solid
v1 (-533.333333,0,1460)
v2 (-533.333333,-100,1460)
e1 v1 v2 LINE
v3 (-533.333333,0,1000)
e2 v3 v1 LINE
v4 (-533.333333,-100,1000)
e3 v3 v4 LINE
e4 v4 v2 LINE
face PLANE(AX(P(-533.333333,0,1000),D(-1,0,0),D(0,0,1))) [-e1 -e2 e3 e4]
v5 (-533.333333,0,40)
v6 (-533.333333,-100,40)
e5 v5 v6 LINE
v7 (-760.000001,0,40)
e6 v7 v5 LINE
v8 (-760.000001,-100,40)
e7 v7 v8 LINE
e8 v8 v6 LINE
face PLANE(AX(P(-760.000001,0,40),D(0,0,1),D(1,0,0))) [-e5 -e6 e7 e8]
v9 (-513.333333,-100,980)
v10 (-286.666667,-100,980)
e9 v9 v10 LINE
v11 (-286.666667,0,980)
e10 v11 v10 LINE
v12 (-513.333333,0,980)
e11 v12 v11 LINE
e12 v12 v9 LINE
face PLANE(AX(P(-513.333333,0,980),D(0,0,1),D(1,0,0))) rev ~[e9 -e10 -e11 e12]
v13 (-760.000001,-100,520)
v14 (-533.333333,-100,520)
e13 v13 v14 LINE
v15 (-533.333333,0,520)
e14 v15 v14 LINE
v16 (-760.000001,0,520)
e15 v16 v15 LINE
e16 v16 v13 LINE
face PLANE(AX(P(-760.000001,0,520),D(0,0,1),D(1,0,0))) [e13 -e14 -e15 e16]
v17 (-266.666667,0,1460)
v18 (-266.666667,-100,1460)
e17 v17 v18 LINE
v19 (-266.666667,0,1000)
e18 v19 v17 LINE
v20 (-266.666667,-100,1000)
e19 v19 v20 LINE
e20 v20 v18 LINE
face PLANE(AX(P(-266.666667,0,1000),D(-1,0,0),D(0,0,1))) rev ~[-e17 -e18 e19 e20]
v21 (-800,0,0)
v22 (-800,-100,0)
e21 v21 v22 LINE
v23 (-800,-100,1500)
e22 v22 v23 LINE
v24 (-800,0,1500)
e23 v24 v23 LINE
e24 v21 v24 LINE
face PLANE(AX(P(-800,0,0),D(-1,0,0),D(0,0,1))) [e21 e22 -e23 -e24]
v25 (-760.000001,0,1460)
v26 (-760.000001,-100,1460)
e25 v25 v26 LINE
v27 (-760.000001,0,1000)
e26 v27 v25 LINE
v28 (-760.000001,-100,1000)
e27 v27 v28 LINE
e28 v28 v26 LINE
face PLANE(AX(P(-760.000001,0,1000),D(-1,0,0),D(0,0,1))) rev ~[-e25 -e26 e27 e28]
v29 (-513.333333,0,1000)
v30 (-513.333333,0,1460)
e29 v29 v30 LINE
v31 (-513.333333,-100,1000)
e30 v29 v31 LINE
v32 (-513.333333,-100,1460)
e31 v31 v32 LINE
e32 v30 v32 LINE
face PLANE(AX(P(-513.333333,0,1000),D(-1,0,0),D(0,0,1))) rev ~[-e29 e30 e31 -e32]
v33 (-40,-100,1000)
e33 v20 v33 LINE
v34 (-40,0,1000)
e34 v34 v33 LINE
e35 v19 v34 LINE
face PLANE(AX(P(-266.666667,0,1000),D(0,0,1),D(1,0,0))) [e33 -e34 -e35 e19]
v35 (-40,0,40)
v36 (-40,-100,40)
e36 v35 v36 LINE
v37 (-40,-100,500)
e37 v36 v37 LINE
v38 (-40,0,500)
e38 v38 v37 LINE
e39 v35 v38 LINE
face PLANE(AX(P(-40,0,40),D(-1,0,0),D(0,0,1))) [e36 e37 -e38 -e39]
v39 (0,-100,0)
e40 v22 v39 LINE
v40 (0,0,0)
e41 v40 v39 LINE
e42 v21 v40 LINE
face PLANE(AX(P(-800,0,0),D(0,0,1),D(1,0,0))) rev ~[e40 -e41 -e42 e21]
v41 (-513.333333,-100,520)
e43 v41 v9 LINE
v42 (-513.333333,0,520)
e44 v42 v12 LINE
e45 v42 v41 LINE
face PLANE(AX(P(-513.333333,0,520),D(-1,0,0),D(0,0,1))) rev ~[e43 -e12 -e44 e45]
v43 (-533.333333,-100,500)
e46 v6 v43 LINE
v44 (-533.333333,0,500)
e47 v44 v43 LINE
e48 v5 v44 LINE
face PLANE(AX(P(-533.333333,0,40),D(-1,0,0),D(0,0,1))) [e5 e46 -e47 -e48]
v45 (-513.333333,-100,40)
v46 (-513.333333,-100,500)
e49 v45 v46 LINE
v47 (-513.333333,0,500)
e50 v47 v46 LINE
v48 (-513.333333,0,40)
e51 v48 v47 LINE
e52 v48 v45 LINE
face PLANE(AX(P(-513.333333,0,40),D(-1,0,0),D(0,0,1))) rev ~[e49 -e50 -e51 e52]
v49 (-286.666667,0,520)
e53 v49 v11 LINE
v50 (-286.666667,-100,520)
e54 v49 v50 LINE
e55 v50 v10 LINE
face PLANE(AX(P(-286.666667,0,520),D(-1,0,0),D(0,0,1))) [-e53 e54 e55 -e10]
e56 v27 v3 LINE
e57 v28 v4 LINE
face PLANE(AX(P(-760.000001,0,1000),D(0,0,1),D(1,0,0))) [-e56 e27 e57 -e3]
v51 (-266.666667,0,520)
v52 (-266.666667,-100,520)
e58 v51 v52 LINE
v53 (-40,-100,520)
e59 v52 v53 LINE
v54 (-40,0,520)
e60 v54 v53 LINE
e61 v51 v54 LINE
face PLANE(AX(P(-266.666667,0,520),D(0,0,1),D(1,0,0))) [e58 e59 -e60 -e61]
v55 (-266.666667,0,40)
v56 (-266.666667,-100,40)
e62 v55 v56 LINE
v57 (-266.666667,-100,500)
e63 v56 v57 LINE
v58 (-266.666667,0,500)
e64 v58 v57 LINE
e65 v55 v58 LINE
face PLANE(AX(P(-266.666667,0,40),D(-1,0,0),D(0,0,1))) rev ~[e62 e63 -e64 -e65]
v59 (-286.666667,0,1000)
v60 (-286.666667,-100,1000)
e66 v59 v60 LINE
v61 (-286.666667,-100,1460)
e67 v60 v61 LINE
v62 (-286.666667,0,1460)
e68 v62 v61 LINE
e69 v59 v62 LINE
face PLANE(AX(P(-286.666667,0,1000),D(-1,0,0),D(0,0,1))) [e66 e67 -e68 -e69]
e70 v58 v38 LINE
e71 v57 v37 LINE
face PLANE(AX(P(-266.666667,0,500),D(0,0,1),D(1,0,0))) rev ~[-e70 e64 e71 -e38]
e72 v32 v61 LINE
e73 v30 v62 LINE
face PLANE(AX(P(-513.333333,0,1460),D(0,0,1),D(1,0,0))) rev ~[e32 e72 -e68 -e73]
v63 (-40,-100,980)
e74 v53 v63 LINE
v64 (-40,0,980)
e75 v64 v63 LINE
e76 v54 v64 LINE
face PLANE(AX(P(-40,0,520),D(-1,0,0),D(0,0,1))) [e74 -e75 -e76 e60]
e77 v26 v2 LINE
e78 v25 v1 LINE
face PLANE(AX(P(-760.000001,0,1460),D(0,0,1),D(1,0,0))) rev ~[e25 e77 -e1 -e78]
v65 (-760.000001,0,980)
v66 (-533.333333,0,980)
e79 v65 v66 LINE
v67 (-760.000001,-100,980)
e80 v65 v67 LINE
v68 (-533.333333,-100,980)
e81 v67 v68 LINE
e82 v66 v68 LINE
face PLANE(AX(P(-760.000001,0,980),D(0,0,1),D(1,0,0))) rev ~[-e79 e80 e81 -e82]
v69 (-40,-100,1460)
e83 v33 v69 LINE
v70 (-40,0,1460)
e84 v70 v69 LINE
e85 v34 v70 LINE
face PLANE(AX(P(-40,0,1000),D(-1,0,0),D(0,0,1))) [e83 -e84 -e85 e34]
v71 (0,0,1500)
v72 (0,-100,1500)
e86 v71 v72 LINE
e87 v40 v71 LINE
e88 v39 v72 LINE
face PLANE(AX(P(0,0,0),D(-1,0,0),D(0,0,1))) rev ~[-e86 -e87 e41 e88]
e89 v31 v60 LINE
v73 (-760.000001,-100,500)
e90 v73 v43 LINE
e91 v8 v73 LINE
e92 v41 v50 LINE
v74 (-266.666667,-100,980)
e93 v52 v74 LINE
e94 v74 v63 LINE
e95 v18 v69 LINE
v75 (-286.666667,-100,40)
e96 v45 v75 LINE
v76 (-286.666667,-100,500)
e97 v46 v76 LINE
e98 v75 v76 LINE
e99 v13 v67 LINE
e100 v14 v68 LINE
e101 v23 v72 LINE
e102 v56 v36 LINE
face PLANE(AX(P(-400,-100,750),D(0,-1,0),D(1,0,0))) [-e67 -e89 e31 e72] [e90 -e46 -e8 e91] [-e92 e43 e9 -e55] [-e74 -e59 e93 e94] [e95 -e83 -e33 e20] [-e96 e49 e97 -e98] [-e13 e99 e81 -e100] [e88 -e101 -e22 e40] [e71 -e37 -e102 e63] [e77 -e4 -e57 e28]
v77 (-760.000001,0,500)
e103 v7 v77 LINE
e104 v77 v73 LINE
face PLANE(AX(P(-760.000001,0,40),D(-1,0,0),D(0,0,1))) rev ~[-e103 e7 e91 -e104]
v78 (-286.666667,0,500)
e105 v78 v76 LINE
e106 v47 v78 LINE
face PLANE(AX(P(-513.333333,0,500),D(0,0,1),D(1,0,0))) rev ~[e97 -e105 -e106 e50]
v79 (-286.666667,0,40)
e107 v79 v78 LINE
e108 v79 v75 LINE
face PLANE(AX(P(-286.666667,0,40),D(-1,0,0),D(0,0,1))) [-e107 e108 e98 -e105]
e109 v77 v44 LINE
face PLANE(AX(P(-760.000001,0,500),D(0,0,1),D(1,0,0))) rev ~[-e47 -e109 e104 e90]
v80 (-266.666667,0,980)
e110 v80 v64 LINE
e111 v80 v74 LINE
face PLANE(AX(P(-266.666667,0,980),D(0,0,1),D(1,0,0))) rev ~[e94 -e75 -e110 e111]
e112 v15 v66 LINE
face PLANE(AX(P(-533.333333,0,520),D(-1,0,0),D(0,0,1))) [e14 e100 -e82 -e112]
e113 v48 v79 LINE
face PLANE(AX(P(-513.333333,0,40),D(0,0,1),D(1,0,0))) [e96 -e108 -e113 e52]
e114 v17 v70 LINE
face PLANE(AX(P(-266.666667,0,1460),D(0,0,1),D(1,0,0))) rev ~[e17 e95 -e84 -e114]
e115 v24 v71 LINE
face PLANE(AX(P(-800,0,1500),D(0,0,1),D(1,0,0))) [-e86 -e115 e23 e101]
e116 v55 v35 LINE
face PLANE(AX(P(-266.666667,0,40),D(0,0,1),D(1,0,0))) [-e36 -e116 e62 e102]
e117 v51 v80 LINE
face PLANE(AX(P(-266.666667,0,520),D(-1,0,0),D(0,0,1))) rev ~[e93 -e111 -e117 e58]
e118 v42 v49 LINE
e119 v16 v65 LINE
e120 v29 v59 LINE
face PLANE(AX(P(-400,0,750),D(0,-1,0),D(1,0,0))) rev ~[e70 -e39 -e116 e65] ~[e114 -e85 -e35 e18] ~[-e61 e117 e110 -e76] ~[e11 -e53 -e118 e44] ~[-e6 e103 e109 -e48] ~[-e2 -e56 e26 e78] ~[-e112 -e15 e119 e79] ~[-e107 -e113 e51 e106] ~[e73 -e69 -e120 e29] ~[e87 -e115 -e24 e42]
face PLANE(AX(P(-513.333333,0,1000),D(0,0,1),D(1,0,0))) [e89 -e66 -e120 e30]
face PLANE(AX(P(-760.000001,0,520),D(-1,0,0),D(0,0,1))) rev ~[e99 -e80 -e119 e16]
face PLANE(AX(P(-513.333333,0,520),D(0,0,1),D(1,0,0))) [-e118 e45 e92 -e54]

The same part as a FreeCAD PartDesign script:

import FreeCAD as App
import Part
import Sketcher

V = App.Vector
Q = App.Units.Quantity

doc = App.newDocument("Part")
body = doc.addObject("PartDesign::Body", "Body")

sketch1 = body.newObject("Sketcher::SketchObject", "Sketch")
sketch1.AttachmentSupport = (doc.getObject("XZ_Plane"), [""])
sketch1.MapMode = "FlatFace"
sketch1.addGeometry([
    Part.LineSegment(V(-800, 1500, 0), V(-800, 0, 0)),
    Part.LineSegment(V(-800, 0, 0), V(0, 0, 0)),
    Part.LineSegment(V(0, 0, 0), V(0, 1500, 0)),
    Part.LineSegment(V(0, 1500, 0), V(-800, 1500, 0)),
    Part.LineSegment(V(-533, 40, 0), V(-760, 40, 0)),
    Part.LineSegment(V(-760, 40, 0), V(-760, 500, 0)),
    Part.LineSegment(V(-760, 500, 0), V(-533, 500, 0)),
    Part.LineSegment(V(-533, 500, 0), V(-533, 40, 0)),
    Part.LineSegment(V(-287, 40, 0), V(-513, 40, 0)),
    Part.LineSegment(V(-513, 40, 0), V(-513, 500, 0)),
    Part.LineSegment(V(-513, 500, 0), V(-287, 500, 0)),
    Part.LineSegment(V(-287, 500, 0), V(-287, 40, 0)),
    Part.LineSegment(V(-40, 40, 0), V(-267, 40, 0)),
    Part.LineSegment(V(-267, 40, 0), V(-267, 500, 0)),
    Part.LineSegment(V(-267, 500, 0), V(-40, 500, 0)),
    Part.LineSegment(V(-40, 500, 0), V(-40, 40, 0)),
    Part.LineSegment(V(-533, 520, 0), V(-760, 520, 0)),
    Part.LineSegment(V(-760, 520, 0), V(-760, 980, 0)),
    Part.LineSegment(V(-760, 980, 0), V(-533, 980, 0)),
    Part.LineSegment(V(-533, 980, 0), V(-533, 520, 0)),
    Part.LineSegment(V(-533, 1000, 0), V(-760, 1000, 0)),
    Part.LineSegment(V(-760, 1000, 0), V(-760, 1460, 0)),
    Part.LineSegment(V(-760, 1460, 0), V(-533, 1460, 0)),
    Part.LineSegment(V(-533, 1460, 0), V(-533, 1000, 0)),
    Part.LineSegment(V(-287, 520, 0), V(-513, 520, 0)),
    Part.LineSegment(V(-513, 520, 0), V(-513, 980, 0)),
    Part.LineSegment(V(-513, 980, 0), V(-287, 980, 0)),
    Part.LineSegment(V(-287, 980, 0), V(-287, 520, 0)),
    Part.LineSegment(V(-40, 520, 0), V(-267, 520, 0)),
    Part.LineSegment(V(-267, 520, 0), V(-267, 980, 0)),
    Part.LineSegment(V(-267, 980, 0), V(-40, 980, 0)),
    Part.LineSegment(V(-40, 980, 0), V(-40, 520, 0)),
    Part.LineSegment(V(-287, 1000, 0), V(-513, 1000, 0)),
    Part.LineSegment(V(-513, 1000, 0), V(-513, 1460, 0)),
    Part.LineSegment(V(-513, 1460, 0), V(-287, 1460, 0)),
    Part.LineSegment(V(-287, 1460, 0), V(-287, 1000, 0)),
    Part.LineSegment(V(-40, 1000, 0), V(-267, 1000, 0)),
    Part.LineSegment(V(-267, 1000, 0), V(-267, 1460, 0)),
    Part.LineSegment(V(-267, 1460, 0), V(-40, 1460, 0)),
    Part.LineSegment(V(-40, 1460, 0), V(-40, 1000, 0)),
], False)
sketch1.addConstraint([
    Sketcher.Constraint("Coincident", 0, 2, 1, 1),
    Sketcher.Constraint("Coincident", 1, 2, 2, 1),
    Sketcher.Constraint("Coincident", 2, 2, 3, 1),
    Sketcher.Constraint("Coincident", 3, 2, 0, 1),
    Sketcher.Constraint("Coincident", 4, 2, 5, 1),
    Sketcher.Constraint("Coincident", 5, 2, 6, 1),
    Sketcher.Constraint("Coincident", 6, 2, 7, 1),
    Sketcher.Constraint("Coincident", 7, 2, 4, 1),
    Sketcher.Constraint("Coincident", 8, 2, 9, 1),
    Sketcher.Constraint("Coincident", 9, 2, 10, 1),
    Sketcher.Constraint("Coincident", 10, 2, 11, 1),
    Sketcher.Constraint("Coincident", 11, 2, 8, 1),
    Sketcher.Constraint("Coincident", 12, 2, 13, 1),
    Sketcher.Constraint("Coincident", 13, 2, 14, 1),
    Sketcher.Constraint("Coincident", 14, 2, 15, 1),
    Sketcher.Constraint("Coincident", 15, 2, 12, 1),
    Sketcher.Constraint("Coincident", 16, 2, 17, 1),
    Sketcher.Constraint("Coincident", 17, 2, 18, 1),
    Sketcher.Constraint("Coincident", 18, 2, 19, 1),
    Sketcher.Constraint("Coincident", 19, 2, 16, 1),
    Sketcher.Constraint("Coincident", 20, 2, 21, 1),
    Sketcher.Constraint("Coincident", 21, 2, 22, 1),
    Sketcher.Constraint("Coincident", 22, 2, 23, 1),
    Sketcher.Constraint("Coincident", 23, 2, 20, 1),
    Sketcher.Constraint("Coincident", 24, 2, 25, 1),
    Sketcher.Constraint("Coincident", 25, 2, 26, 1),
    Sketcher.Constraint("Coincident", 26, 2, 27, 1),
    Sketcher.Constraint("Coincident", 27, 2, 24, 1),
    Sketcher.Constraint("Coincident", 28, 2, 29, 1),
    Sketcher.Constraint("Coincident", 29, 2, 30, 1),
    Sketcher.Constraint("Coincident", 30, 2, 31, 1),
    Sketcher.Constraint("Coincident", 31, 2, 28, 1),
    Sketcher.Constraint("Coincident", 32, 2, 33, 1),
    Sketcher.Constraint("Coincident", 33, 2, 34, 1),
    Sketcher.Constraint("Coincident", 34, 2, 35, 1),
    Sketcher.Constraint("Coincident", 35, 2, 32, 1),
    Sketcher.Constraint("Coincident", 36, 2, 37, 1),
    Sketcher.Constraint("Coincident", 37, 2, 38, 1),
    Sketcher.Constraint("Coincident", 38, 2, 39, 1),
    Sketcher.Constraint("Coincident", 39, 2, 36, 1),
    Sketcher.Constraint("Vertical", 0),
    Sketcher.Constraint("Horizontal", 1),
    Sketcher.Constraint("Vertical", 2),
    Sketcher.Constraint("Horizontal", 3),
    Sketcher.Constraint("Horizontal", 4),
    Sketcher.Constraint("Vertical", 5),
    Sketcher.Constraint("Horizontal", 6),
    Sketcher.Constraint("Vertical", 7),
    Sketcher.Constraint("Horizontal", 8),
    Sketcher.Constraint("Vertical", 9),
    Sketcher.Constraint("Horizontal", 10),
    Sketcher.Constraint("Vertical", 11),
    Sketcher.Constraint("Horizontal", 12),
    Sketcher.Constraint("Vertical", 13),
    Sketcher.Constraint("Horizontal", 14),
    Sketcher.Constraint("Vertical", 15),
    Sketcher.Constraint("Horizontal", 16),
    Sketcher.Constraint("Vertical", 17),
    Sketcher.Constraint("Horizontal", 18),
    Sketcher.Constraint("Vertical", 19),
    Sketcher.Constraint("Horizontal", 20),
    Sketcher.Constraint("Vertical", 21),
    Sketcher.Constraint("Horizontal", 22),
    Sketcher.Constraint("Vertical", 23),
    Sketcher.Constraint("Horizontal", 24),
    Sketcher.Constraint("Vertical", 25),
    Sketcher.Constraint("Horizontal", 26),
    Sketcher.Constraint("Vertical", 27),
    Sketcher.Constraint("Horizontal", 28),
    Sketcher.Constraint("Vertical", 29),
    Sketcher.Constraint("Horizontal", 30),
    Sketcher.Constraint("Vertical", 31),
    Sketcher.Constraint("Horizontal", 32),
    Sketcher.Constraint("Vertical", 33),
    Sketcher.Constraint("Horizontal", 34),
    Sketcher.Constraint("Vertical", 35),
    Sketcher.Constraint("Horizontal", 36),
    Sketcher.Constraint("Vertical", 37),
    Sketcher.Constraint("Horizontal", 38),
    Sketcher.Constraint("Vertical", 39),
    Sketcher.Constraint("Coincident", 1, 2, -1, 1),
    Sketcher.Constraint("Horizontal", 7, 2, 8, 2),
    Sketcher.Constraint("Horizontal", 6, 2, 9, 2),
    Sketcher.Constraint("Horizontal", 11, 2, 12, 2),
    Sketcher.Constraint("Horizontal", 10, 2, 13, 2),
    Sketcher.Constraint("Horizontal", 19, 2, 24, 2),
    Sketcher.Constraint("Horizontal", 18, 2, 25, 2),
    Sketcher.Constraint("Horizontal", 27, 2, 28, 2),
    Sketcher.Constraint("Horizontal", 26, 2, 29, 2),
    Sketcher.Constraint("Horizontal", 23, 2, 32, 2),
    Sketcher.Constraint("Horizontal", 22, 2, 33, 2),
    Sketcher.Constraint("Horizontal", 35, 2, 36, 2),
    Sketcher.Constraint("Horizontal", 34, 2, 37, 2),
    Sketcher.Constraint("Vertical", 5, 2, 16, 2),
    Sketcher.Constraint("Vertical", 7, 2, 18, 2),
    Sketcher.Constraint("Vertical", 17, 2, 20, 2),
    Sketcher.Constraint("Vertical", 19, 2, 22, 2),
    Sketcher.Constraint("Vertical", 9, 2, 24, 2),
    Sketcher.Constraint("Vertical", 11, 2, 26, 2),
    Sketcher.Constraint("Vertical", 13, 2, 28, 2),
    Sketcher.Constraint("Vertical", 15, 2, 30, 2),
    Sketcher.Constraint("Vertical", 25, 2, 32, 2),
    Sketcher.Constraint("Vertical", 27, 2, 34, 2),
    Sketcher.Constraint("Vertical", 29, 2, 36, 2),
    Sketcher.Constraint("Vertical", 31, 2, 38, 2),
    Sketcher.Constraint("Equal", 6, 8),
    Sketcher.Constraint("Equal", 10, 12),
    Sketcher.Constraint("Equal", 15, 17),
    Sketcher.Constraint("Equal", 19, 21),
    Sketcher.Constraint("DistanceX", 1, 1, 1, 2, Q("800 mm")),
    Sketcher.Constraint("DistanceY", 0, 2, 0, 1, Q("1500 mm")),
    Sketcher.Constraint("DistanceY", 5, 1, 5, 2, Q("460 mm")),
    Sketcher.Constraint("DistanceX", 4, 2, -1, 1, Q("760.000001 mm")),
    Sketcher.Constraint("DistanceY", -1, 1, 4, 2, Q("40 mm")),
    Sketcher.Constraint("DistanceX", 14, 2, -1, 1, Q("40 mm")),
    Sketcher.Constraint("DistanceY", -1, 1, 16, 2, Q("520 mm")),
    Sketcher.Constraint("DistanceY", -1, 1, 20, 2, Q("1000 mm")),
    Sketcher.Constraint("DistanceX", 7, 2, 8, 2, Q("20 mm")),
    Sketcher.Constraint("DistanceX", 11, 2, 12, 2, Q("20 mm")),
])
pad1 = body.newObject("PartDesign::Pad", "Pad")
pad1.Profile = sketch1
pad1.Length = 100

doc.recompute()
